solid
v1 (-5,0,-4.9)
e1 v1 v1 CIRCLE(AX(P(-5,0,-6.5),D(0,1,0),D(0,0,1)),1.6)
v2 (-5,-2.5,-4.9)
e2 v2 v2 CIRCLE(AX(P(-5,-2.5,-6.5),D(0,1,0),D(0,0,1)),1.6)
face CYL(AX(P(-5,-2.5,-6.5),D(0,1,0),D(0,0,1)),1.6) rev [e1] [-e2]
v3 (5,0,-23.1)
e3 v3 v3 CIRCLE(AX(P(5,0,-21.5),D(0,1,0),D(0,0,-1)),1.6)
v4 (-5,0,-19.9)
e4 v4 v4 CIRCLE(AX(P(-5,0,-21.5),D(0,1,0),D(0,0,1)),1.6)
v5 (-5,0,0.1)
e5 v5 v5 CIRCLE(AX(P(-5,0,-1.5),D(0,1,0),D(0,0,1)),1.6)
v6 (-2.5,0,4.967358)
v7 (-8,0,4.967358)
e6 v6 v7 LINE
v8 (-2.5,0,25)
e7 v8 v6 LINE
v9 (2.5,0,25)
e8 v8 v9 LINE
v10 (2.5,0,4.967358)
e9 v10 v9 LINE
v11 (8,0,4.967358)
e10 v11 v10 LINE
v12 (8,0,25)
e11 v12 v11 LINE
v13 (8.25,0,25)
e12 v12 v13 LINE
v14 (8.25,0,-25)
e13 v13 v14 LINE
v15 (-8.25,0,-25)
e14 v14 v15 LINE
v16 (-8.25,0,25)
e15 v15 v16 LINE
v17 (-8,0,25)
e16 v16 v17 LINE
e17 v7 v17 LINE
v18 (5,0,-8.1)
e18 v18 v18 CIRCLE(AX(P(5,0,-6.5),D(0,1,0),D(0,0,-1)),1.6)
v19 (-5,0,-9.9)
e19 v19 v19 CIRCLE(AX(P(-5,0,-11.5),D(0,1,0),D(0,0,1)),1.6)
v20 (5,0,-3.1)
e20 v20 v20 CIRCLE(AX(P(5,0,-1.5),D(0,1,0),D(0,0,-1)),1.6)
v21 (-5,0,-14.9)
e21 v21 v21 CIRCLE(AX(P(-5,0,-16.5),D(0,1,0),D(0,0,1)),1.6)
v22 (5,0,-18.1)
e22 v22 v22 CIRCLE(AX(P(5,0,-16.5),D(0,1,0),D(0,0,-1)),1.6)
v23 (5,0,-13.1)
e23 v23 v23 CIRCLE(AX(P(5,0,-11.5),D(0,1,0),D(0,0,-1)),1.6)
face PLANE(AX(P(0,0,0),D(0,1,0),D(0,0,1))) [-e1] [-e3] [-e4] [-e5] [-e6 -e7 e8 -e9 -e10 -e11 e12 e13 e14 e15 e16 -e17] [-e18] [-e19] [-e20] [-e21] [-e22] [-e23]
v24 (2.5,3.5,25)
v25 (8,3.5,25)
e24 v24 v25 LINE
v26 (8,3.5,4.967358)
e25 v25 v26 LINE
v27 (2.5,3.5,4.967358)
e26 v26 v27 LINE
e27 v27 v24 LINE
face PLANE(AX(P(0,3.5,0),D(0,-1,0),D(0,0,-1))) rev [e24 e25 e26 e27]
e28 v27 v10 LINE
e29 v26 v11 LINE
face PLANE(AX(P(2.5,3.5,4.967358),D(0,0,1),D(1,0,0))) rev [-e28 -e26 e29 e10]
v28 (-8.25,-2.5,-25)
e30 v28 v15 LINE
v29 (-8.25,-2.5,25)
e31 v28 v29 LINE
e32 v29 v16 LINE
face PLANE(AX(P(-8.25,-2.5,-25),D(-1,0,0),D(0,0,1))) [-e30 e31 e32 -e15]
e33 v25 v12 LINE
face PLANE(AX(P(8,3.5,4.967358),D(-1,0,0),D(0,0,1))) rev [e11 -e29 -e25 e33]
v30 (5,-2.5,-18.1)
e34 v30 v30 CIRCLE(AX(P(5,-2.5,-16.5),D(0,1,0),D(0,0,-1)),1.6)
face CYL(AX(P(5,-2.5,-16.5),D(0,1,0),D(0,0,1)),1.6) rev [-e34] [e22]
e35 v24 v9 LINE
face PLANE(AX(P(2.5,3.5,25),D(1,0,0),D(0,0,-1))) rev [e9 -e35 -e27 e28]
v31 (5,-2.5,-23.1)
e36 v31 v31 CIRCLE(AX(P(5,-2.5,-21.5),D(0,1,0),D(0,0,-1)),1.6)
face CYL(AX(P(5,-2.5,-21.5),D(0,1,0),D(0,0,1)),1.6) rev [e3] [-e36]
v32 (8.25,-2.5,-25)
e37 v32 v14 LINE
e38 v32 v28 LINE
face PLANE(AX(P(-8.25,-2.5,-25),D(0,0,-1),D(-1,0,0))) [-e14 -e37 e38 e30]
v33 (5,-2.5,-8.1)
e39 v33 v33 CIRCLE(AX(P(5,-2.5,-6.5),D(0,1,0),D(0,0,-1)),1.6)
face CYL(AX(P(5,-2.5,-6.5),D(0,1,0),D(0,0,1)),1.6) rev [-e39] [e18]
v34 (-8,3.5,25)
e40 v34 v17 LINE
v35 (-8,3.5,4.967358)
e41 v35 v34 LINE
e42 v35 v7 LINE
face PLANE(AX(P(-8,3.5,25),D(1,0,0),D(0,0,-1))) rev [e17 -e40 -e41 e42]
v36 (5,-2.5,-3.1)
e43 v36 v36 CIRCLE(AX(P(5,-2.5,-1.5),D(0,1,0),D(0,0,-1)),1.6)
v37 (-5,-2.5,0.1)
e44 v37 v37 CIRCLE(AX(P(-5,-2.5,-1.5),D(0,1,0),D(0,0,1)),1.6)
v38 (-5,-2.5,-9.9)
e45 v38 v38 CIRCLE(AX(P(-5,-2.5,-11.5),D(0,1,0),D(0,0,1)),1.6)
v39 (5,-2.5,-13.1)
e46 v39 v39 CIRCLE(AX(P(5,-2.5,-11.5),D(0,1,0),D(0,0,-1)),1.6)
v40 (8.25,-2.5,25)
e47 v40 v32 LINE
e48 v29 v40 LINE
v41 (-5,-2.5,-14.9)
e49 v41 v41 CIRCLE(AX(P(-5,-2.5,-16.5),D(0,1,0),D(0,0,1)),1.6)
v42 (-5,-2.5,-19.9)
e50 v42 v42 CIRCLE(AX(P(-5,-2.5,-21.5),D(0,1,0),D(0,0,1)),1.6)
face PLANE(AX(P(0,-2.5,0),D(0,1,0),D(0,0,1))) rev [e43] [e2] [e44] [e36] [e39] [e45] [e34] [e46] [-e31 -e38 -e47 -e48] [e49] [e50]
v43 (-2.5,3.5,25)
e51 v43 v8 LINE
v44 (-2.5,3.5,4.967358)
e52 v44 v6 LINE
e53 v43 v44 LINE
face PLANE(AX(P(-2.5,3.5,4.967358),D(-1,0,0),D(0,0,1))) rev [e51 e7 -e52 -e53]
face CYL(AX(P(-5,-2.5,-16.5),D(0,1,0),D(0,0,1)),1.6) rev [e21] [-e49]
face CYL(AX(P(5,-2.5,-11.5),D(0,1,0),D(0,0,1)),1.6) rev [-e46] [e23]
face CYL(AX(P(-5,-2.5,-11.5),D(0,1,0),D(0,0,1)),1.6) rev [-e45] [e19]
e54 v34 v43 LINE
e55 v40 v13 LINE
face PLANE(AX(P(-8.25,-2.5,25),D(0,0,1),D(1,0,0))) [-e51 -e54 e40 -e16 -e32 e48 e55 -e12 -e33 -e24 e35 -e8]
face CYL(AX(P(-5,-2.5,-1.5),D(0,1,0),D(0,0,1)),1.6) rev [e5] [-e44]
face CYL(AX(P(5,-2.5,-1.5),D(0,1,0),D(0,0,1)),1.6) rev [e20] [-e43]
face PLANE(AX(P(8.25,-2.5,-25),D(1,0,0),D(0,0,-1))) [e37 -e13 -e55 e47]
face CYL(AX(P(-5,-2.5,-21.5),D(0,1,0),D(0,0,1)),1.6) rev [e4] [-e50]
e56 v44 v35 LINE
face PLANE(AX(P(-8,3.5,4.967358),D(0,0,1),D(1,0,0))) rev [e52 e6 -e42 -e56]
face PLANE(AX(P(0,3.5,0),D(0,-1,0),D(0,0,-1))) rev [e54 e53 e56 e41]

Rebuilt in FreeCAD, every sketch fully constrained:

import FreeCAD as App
import Part
import Sketcher


def add_polygon(sketch, points):
    """Adds a closed chain of lines whose ends are joined by coincident constraints."""
    first, n = sketch.GeometryCount, len(points)
    for a, b in zip(points, points[1:] + points[:1]):
        sketch.addGeometry(Part.LineSegment(App.Vector(*a, 0), App.Vector(*b, 0)), False)
    for i in range(n):
        sketch.addConstraint(Sketcher.Constraint("Coincident", first + i, 2, first + (i + 1) % n, 1))

doc = App.newDocument("Part")
body = doc.addObject("PartDesign::Body", "Body")

sketch1 = doc.addObject("Sketcher::SketchObject", "Sketch")
body.addObject(sketch1)
sketch1.AttachmentSupport = (doc.XZ_Plane, [""])
sketch1.MapMode = "FlatFace"
add_polygon(sketch1, [(-8.25, -25), (-8.25, 25), (8.25, 25), (8.25, -25)])
sketch1.addConstraint(Sketcher.Constraint("Vertical", 0))
sketch1.addConstraint(Sketcher.Constraint("Horizontal", 1))
sketch1.addConstraint(Sketcher.Constraint("Vertical", 2))
sketch1.addConstraint(Sketcher.Constraint("Horizontal", 3))
sketch1.addConstraint(Sketcher.Constraint("Symmetric", 0, 2, 2, 2, -1, 1))
sketch1.addConstraint(Sketcher.Constraint("DistanceY", 0, 1, 0, 2, 50.0))
sketch1.addConstraint(Sketcher.Constraint("DistanceX", 1, 1, 1, 2, 16.5))
pad1 = doc.addObject("PartDesign::Pad", "Pad")
body.addObject(pad1)
pad1.Profile = sketch1
pad1.Length = 2.5

sketch2 = doc.addObject("Sketcher::SketchObject", "Sketch001")
body.addObject(sketch2)
sketch2.AttachmentSupport = (doc.XZ_Plane, [""])
sketch2.MapMode = "FlatFace"
add_polygon(sketch2, [(-8, 4.967358), (-8, 25), (-2.5, 25), (-2.5, 4.967358)])
add_polygon(sketch2, [(2.5, 4.967358), (2.5, 25), (8, 25), (8, 4.967358)])
sketch2.addConstraint(Sketcher.Constraint("Vertical", 0))
sketch2.addConstraint(Sketcher.Constraint("Horizontal", 1))
sketch2.addConstraint(Sketcher.Constraint("Vertical", 2))
sketch2.addConstraint(Sketcher.Constraint("Horizontal", 3))
sketch2.addConstraint(Sketcher.Constraint("Vertical", 4))
sketch2.addConstraint(Sketcher.Constraint("Horizontal", 5))
sketch2.addConstraint(Sketcher.Constraint("Vertical", 6))
sketch2.addConstraint(Sketcher.Constraint("Horizontal", 7))
sketch2.addConstraint(Sketcher.Constraint("Symmetric", 1, 2, 4, 2, -2))
sketch2.addConstraint(Sketcher.Constraint("Symmetric", 3, 2, 6, 2, -2))
sketch2.addConstraint(Sketcher.Constraint("DistanceX", 1, 1, 1, 2, 5.5))
sketch2.addConstraint(Sketcher.Constraint("DistanceX", 0, 2, -1, 1, 8.0))
sketch2.addConstraint(Sketcher.Constraint("DistanceY", -1, 1, 0, 2, 25.0))
sketch2.addConstraint(Sketcher.Constraint("DistanceY", 0, 1, 0, 2, 20.032642))
pad2 = doc.addObject("PartDesign::Pad", "Pad001")
body.addObject(pad2)
pad2.Profile = sketch2
pad2.Length = 3.5
pad2.Reversed = True

sketch3 = doc.addObject("Sketcher::SketchObject", "Sketch002")
body.addObject(sketch3)
sketch3.AttachmentSupport = (doc.XZ_Plane, [""])
sketch3.MapMode = "FlatFace"
sketch3.addGeometry(Part.Circle(App.Vector(-5, -21.5, 0), App.Vector(0, 0, 1), 1.6), False)
sketch3.addGeometry(Part.Circle(App.Vector(5, -21.5, 0), App.Vector(0, 0, 1), 1.6), False)
sketch3.addConstraint(Sketcher.Constraint("Equal", 0, 1))
sketch3.addConstraint(Sketcher.Constraint("Symmetric", 0, 3, 1, 3, -2))
sketch3.addConstraint(Sketcher.Constraint("Diameter", 0, 3.2))
sketch3.addConstraint(Sketcher.Constraint("DistanceX", 0, 3, -1, 1, 5.0))
sketch3.addConstraint(Sketcher.Constraint("DistanceY", 0, 3, -1, 1, 21.5))
pocket1 = doc.addObject("PartDesign::Pocket", "Pocket")
body.addObject(pocket1)
pocket1.Profile = sketch3
pocket1.Type = "ThroughAll"
pocket1.Reversed = True
doc.recompute()

linearpattern = doc.addObject("PartDesign::LinearPattern", "LinearPattern")
body.addObject(linearpattern)
linearpattern.Originals = [pocket1]
linearpattern.Direction = (doc.Z_Axis, [""])
linearpattern.Mode = "offset"
linearpattern.Offset = 5
linearpattern.Occurrences = 5
body.Tip = linearpattern

doc.recompute()
